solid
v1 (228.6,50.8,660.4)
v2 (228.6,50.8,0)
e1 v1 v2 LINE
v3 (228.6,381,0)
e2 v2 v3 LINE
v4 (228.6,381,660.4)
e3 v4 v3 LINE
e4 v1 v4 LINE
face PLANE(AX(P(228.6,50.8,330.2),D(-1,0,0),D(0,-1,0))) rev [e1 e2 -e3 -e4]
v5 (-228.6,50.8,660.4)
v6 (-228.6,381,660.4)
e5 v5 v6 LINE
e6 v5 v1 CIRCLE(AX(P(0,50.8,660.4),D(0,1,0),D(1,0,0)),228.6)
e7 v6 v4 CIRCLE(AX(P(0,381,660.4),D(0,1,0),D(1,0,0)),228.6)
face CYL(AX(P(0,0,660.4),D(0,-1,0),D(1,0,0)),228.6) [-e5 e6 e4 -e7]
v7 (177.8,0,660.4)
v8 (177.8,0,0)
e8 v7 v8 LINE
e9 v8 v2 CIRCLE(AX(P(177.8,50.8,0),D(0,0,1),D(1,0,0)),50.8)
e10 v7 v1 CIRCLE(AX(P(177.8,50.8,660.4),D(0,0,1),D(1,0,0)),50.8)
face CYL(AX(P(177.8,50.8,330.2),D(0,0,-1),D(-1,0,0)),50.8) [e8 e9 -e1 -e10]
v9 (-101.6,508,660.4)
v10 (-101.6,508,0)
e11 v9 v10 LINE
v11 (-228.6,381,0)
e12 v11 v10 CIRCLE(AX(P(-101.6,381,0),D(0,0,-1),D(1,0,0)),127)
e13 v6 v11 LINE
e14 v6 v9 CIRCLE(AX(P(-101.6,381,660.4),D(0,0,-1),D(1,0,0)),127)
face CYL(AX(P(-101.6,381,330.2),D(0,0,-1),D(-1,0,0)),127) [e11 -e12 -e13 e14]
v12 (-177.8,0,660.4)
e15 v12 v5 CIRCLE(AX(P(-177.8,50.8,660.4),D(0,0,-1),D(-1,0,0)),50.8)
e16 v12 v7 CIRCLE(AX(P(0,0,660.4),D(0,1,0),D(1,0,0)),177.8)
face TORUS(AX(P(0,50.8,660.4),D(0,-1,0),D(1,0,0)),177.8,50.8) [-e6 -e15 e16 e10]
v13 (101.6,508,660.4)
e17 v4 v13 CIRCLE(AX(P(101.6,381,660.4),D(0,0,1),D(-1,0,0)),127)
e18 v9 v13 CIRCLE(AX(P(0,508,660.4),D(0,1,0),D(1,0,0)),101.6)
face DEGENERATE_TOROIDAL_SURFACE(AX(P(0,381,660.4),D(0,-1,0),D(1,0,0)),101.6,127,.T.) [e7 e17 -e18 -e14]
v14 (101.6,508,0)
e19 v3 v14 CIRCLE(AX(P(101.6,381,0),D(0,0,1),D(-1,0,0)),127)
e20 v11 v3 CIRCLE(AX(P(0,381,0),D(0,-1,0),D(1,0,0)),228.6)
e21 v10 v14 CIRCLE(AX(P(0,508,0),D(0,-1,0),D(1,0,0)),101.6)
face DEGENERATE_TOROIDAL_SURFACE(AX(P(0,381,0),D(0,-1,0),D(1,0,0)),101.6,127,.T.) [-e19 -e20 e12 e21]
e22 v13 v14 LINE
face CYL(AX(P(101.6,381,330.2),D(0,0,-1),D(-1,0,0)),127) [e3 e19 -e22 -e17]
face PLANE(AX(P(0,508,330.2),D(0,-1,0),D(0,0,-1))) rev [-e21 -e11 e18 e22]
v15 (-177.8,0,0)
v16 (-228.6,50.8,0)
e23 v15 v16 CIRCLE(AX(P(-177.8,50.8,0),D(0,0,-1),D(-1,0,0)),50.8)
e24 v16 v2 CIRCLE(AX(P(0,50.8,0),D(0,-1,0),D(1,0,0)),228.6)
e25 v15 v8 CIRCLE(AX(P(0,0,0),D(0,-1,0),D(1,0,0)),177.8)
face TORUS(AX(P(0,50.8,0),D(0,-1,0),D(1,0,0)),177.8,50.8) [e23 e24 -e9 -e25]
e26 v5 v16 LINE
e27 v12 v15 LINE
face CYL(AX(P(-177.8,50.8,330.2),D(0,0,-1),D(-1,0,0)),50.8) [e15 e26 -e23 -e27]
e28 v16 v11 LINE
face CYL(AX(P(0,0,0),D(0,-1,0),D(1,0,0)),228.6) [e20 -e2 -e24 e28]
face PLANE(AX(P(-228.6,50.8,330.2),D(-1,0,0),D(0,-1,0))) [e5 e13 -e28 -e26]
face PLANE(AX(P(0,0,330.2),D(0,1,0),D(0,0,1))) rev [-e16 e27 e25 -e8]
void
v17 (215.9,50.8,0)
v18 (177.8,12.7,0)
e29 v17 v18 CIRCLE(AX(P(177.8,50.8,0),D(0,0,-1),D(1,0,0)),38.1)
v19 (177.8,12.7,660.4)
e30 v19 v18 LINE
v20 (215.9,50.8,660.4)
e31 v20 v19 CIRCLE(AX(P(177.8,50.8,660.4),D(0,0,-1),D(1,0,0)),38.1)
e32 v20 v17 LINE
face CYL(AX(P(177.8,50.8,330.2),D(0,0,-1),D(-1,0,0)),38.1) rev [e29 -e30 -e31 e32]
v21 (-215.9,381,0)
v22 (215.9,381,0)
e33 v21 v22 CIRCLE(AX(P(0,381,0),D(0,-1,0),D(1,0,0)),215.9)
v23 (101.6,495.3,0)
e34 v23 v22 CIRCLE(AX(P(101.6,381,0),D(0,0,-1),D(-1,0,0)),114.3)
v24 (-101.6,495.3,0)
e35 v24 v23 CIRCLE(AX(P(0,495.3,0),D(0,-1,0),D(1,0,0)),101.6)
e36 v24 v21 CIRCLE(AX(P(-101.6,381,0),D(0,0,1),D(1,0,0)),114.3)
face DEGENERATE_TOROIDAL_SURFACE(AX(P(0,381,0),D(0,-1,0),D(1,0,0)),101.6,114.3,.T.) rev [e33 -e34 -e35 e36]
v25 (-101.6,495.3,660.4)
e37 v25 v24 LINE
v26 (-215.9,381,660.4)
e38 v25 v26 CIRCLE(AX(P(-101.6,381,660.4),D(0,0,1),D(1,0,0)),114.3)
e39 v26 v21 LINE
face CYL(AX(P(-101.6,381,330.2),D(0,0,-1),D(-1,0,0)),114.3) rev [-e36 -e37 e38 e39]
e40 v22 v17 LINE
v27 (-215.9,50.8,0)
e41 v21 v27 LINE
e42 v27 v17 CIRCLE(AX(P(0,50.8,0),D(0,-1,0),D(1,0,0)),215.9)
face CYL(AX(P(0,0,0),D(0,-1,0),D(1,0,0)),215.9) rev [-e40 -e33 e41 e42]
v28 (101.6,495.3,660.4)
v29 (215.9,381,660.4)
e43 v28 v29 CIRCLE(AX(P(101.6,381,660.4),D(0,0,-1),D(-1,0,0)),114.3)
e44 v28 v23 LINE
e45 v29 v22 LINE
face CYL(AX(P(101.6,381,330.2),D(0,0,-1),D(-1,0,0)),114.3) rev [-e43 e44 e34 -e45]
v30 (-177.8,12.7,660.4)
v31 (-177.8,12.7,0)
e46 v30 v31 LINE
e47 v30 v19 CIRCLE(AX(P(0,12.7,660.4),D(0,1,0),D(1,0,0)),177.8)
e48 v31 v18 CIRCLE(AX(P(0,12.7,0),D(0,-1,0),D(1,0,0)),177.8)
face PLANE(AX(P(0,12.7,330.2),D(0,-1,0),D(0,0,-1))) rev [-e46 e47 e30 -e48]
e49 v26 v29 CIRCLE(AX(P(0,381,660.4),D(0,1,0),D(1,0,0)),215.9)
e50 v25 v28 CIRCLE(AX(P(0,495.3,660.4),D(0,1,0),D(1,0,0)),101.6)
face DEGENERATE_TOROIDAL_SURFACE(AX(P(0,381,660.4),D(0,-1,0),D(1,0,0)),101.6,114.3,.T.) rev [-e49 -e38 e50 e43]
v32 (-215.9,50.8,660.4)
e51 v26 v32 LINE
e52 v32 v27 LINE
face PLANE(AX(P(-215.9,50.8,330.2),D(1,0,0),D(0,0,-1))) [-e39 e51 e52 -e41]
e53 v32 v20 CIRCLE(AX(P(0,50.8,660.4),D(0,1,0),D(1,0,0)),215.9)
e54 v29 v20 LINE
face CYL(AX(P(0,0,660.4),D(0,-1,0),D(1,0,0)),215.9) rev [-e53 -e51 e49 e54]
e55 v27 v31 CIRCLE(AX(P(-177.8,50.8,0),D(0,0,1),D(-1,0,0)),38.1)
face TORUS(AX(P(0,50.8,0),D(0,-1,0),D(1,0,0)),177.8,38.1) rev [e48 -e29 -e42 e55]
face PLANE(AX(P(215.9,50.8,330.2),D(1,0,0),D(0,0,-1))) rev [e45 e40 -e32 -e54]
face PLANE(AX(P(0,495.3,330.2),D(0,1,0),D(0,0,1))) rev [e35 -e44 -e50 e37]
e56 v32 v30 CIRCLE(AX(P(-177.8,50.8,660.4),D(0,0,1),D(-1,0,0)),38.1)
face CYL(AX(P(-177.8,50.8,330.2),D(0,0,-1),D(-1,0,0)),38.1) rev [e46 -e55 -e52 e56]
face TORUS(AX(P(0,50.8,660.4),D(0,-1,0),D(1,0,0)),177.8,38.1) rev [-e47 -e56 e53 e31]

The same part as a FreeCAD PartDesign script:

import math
import FreeCAD as App
import Part
import Sketcher
from FreeCAD import Vector
Q = App.Units.Quantity

doc = App.newDocument("Part")
params = doc.addObject("Spreadsheet::Sheet", "Params")
for row, (alias, value) in enumerate([
    ("sketch1_radius", "2 in"),
    ("sketch1_radius2", "5 in"),
    ("sketch1_radius3", "4.5 in"),
    ("sketch1_width", "7 in"),
    ("sketch1_height", "13 in"),
    ("pad1_length", "13 in"),
    ("sketch2_radius", "2 in"),
    ("sketch2_radius2", "5 in"),
    ("sketch2_radius3", "4.5 in"),
    ("sketch2_width", "7 in"),
    ("sketch2_height", "13 in"),
    ("revolution_angle", "90 deg"),
    ("sketch3_radius", "2 in"),
    ("sketch3_radius2", "5 in"),
    ("sketch3_radius3", "4.5 in"),
    ("sketch3_width", "7 in"),
    ("sketch3_height", "13 in"),
    ("pad2_length", "13 in"),
    ("sketch4_radius", "2 in"),
    ("sketch4_radius2", "5 in"),
    ("sketch4_radius3", "4.5 in"),
    ("sketch4_width", "7 in"),
    ("sketch4_height", "13 in"),
    ("revolution2_angle", "90 deg"),
], start=1):
    params.set(f"A{row}", alias)
    params.set(f"B{row}", "=" + value)
    params.setAlias(f"B{row}", alias)

body = doc.addObject("PartDesign::Body", "Body")

# Sketch on XY plane
sketch1 = body.newObject("Sketcher::SketchObject", "Sketch")
sketch1.AttachmentSupport = (doc.getObject("XY_Plane"), [""])
sketch1.MapMode = "FlatFace"
sketch1.addGeometry(Part.LineSegment(Vector(178, 13, 0), Vector(0, 13, 0)), False)
sketch1.addGeometry(Part.LineSegment(Vector(0, 13, 0), Vector(0, 0, 0)), False)
sketch1.addGeometry(Part.LineSegment(Vector(0, 0, 0), Vector(178, 0, 0)), False)
sketch1.addGeometry(Part.ArcOfCircle(Part.Circle(Vector(178, 51, 0), Vector(0, 0, 1), 51), math.radians(-90), math.radians(0)), False)
sketch1.addGeometry(Part.LineSegment(Vector(229, 51, 0), Vector(229, 381, 0)), False)
sketch1.addGeometry(Part.ArcOfCircle(Part.Circle(Vector(102, 381, 0), Vector(0, 0, 1), 127), math.radians(0), math.radians(90)), False)
sketch1.addGeometry(Part.LineSegment(Vector(102, 508, 0), Vector(0, 508, 0)), False)
sketch1.addGeometry(Part.LineSegment(Vector(0, 508, 0), Vector(0, 495, 0)), False)
sketch1.addGeometry(Part.LineSegment(Vector(0, 495, 0), Vector(102, 495, 0)), False)
sketch1.addGeometry(Part.ArcOfCircle(Part.Circle(Vector(102, 381, 0), Vector(0, 0, 1), 114), math.radians(0), math.radians(90)), False)
sketch1.addGeometry(Part.LineSegment(Vector(216, 381, 0), Vector(216, 51, 0)), False)
sketch1.addGeometry(Part.ArcOfCircle(Part.Circle(Vector(178, 51, 0), Vector(0, 0, 1), 38), math.radians(-90), math.radians(0)), False)
sketch1.addConstraint(Sketcher.Constraint("Coincident", 0, 2, 1, 1))
sketch1.addConstraint(Sketcher.Constraint("Coincident", 1, 2, 2, 1))
sketch1.addConstraint(Sketcher.Constraint("Tangent", 2, 2, 3, 1))
sketch1.addConstraint(Sketcher.Constraint("Tangent", 3, 2, 4, 1))
sketch1.addConstraint(Sketcher.Constraint("Tangent", 4, 2, 5, 1))
sketch1.addConstraint(Sketcher.Constraint("Tangent", 5, 2, 6, 1))
sketch1.addConstraint(Sketcher.Constraint("Coincident", 6, 2, 7, 1))
sketch1.addConstraint(Sketcher.Constraint("Coincident", 7, 2, 8, 1))
sketch1.addConstraint(Sketcher.Constraint("Tangent", 8, 2, 9, 2))
sketch1.addConstraint(Sketcher.Constraint("Tangent", 9, 1, 10, 1))
sketch1.addConstraint(Sketcher.Constraint("Tangent", 10, 2, 11, 2))
sketch1.addConstraint(Sketcher.Constraint("Tangent", 11, 1, 0, 1))
sketch1.addConstraint(Sketcher.Constraint("Horizontal", 0))
sketch1.addConstraint(Sketcher.Constraint("Vertical", 1))
sketch1.addConstraint(Sketcher.Constraint("Horizontal", 2))
sketch1.addConstraint(Sketcher.Constraint("Vertical", 4))
sketch1.addConstraint(Sketcher.Constraint("Horizontal", 6))
sketch1.addConstraint(Sketcher.Constraint("Vertical", 7))
sketch1.addConstraint(Sketcher.Constraint("Horizontal", 8))
sketch1.addConstraint(Sketcher.Constraint("Vertical", 10))
sketch1.addConstraint(Sketcher.Constraint("Coincident", 1, 2, -1, 1))
sketch1.addConstraint(Sketcher.Constraint("Coincident", 9, 3, 5, 3))
sketch1.addConstraint(Sketcher.Constraint("Coincident", 11, 3, 3, 3))
sketch1.addConstraint(Sketcher.Constraint("PointOnObject", 6, 2, -2))
sketch1.addConstraint(Sketcher.Constraint("Radius", 3, Q("2 in")))
sketch1.addConstraint(Sketcher.Constraint("Radius", 5, Q("5 in")))
sketch1.addConstraint(Sketcher.Constraint("Radius", 9, Q("4.5 in")))
sketch1.addConstraint(Sketcher.Constraint("DistanceX", 0, 2, 0, 1, Q("7 in")))
sketch1.addConstraint(Sketcher.Constraint("DistanceY", 4, 1, 4, 2, Q("13 in")))
sketch1.setExpression("Constraints[24]", "Params.sketch1_radius")
sketch1.setExpression("Constraints[25]", "Params.sketch1_radius2")
sketch1.setExpression("Constraints[26]", "Params.sketch1_radius3")
sketch1.setExpression("Constraints[27]", "Params.sketch1_width")
sketch1.setExpression("Constraints[28]", "Params.sketch1_height")
pad1 = body.newObject("PartDesign::Pad", "Pad")
pad1.Profile = sketch1
pad1.setExpression("Length", "Params.pad1_length")

# Sketch on XY plane
sketch2 = body.newObject("Sketcher::SketchObject", "Sketch001")
sketch2.AttachmentSupport = (doc.getObject("XY_Plane"), [""])
sketch2.MapMode = "FlatFace"
sketch2.addGeometry(Part.LineSegment(Vector(178, 13, 0), Vector(0, 13, 0)), False)
sketch2.addGeometry(Part.LineSegment(Vector(0, 13, 0), Vector(0, 0, 0)), False)
sketch2.addGeometry(Part.LineSegment(Vector(0, 0, 0), Vector(178, 0, 0)), False)
sketch2.addGeometry(Part.ArcOfCircle(Part.Circle(Vector(178, 51, 0), Vector(0, 0, 1), 51), math.radians(-90), math.radians(0)), False)
sketch2.addGeometry(Part.LineSegment(Vector(229, 51, 0), Vector(229, 381, 0)), False)
sketch2.addGeometry(Part.ArcOfCircle(Part.Circle(Vector(102, 381, 0), Vector(0, 0, 1), 127), math.radians(0), math.radians(90)), False)
sketch2.addGeometry(Part.LineSegment(Vector(102, 508, 0), Vector(0, 508, 0)), False)
sketch2.addGeometry(Part.LineSegment(Vector(0, 508, 0), Vector(0, 495, 0)), False)
sketch2.addGeometry(Part.LineSegment(Vector(0, 495, 0), Vector(102, 495, 0)), False)
sketch2.addGeometry(Part.ArcOfCircle(Part.Circle(Vector(102, 381, 0), Vector(0, 0, 1), 114), math.radians(0), math.radians(90)), False)
sketch2.addGeometry(Part.LineSegment(Vector(216, 381, 0), Vector(216, 51, 0)), False)
sketch2.addGeometry(Part.ArcOfCircle(Part.Circle(Vector(178, 51, 0), Vector(0, 0, 1), 38), math.radians(-90), math.radians(0)), False)
sketch2.addConstraint(Sketcher.Constraint("Coincident", 0, 2, 1, 1))
sketch2.addConstraint(Sketcher.Constraint("Coincident", 1, 2, 2, 1))
sketch2.addConstraint(Sketcher.Constraint("Tangent", 2, 2, 3, 1))
sketch2.addConstraint(Sketcher.Constraint("Tangent", 3, 2, 4, 1))
sketch2.addConstraint(Sketcher.Constraint("Tangent", 4, 2, 5, 1))
sketch2.addConstraint(Sketcher.Constraint("Tangent", 5, 2, 6, 1))
sketch2.addConstraint(Sketcher.Constraint("Coincident", 6, 2, 7, 1))
sketch2.addConstraint(Sketcher.Constraint("Coincident", 7, 2, 8, 1))
sketch2.addConstraint(Sketcher.Constraint("Tangent", 8, 2, 9, 2))
sketch2.addConstraint(Sketcher.Constraint("Tangent", 9, 1, 10, 1))
sketch2.addConstraint(Sketcher.Constraint("Tangent", 10, 2, 11, 2))
sketch2.addConstraint(Sketcher.Constraint("Tangent", 11, 1, 0, 1))
sketch2.addConstraint(Sketcher.Constraint("Horizontal", 0))
sketch2.addConstraint(Sketcher.Constraint("Vertical", 1))
sketch2.addConstraint(Sketcher.Constraint("Horizontal", 2))
sketch2.addConstraint(Sketcher.Constraint("Vertical", 4))
sketch2.addConstraint(Sketcher.Constraint("Horizontal", 6))
sketch2.addConstraint(Sketcher.Constraint("Vertical", 7))
sketch2.addConstraint(Sketcher.Constraint("Horizontal", 8))
sketch2.addConstraint(Sketcher.Constraint("Vertical", 10))
sketch2.addConstraint(Sketcher.Constraint("Coincident", 1, 2, -1, 1))
sketch2.addConstraint(Sketcher.Constraint("Coincident", 9, 3, 5, 3))
sketch2.addConstraint(Sketcher.Constraint("Coincident", 11, 3, 3, 3))
sketch2.addConstraint(Sketcher.Constraint("PointOnObject", 6, 2, -2))
sketch2.addConstraint(Sketcher.Constraint("Radius", 3, Q("2 in")))
sketch2.addConstraint(Sketcher.Constraint("Radius", 5, Q("5 in")))
sketch2.addConstraint(Sketcher.Constraint("Radius", 9, Q("4.5 in")))
sketch2.addConstraint(Sketcher.Constraint("DistanceX", 0, 2, 0, 1, Q("7 in")))
sketch2.addConstraint(Sketcher.Constraint("DistanceY", 4, 1, 4, 2, Q("13 in")))
sketch2.setExpression("Constraints[24]", "Params.sketch2_radius")
sketch2.setExpression("Constraints[25]", "Params.sketch2_radius2")
sketch2.setExpression("Constraints[26]", "Params.sketch2_radius3")
sketch2.setExpression("Constraints[27]", "Params.sketch2_width")
sketch2.setExpression("Constraints[28]", "Params.sketch2_height")
revolution = body.newObject("PartDesign::Revolution", "Revolution")
revolution.Profile = sketch2
revolution.ReferenceAxis = (sketch2, ["V_Axis"])
revolution.setExpression("Angle", "Params.revolution_angle")
doc.recompute()

mirrored = body.newObject("PartDesign::Mirrored", "Mirrored")
mirrored.Originals = [pad1, revolution]
mirrored.MirrorPlane = (doc.getObject("YZ_Plane"), [""])
body.Tip = mirrored
doc.recompute()

datumplane = body.newObject("PartDesign::Plane", "DatumPlane")
datumplane.AttachmentSupport = (doc.getObject("XY_Plane"), [""])
datumplane.MapMode = "FlatFace"
datumplane.AttachmentOffset = App.Placement(Vector(0, 0, 13 * 25.4), App.Rotation())
mirrored2 = body.newObject("PartDesign::Mirrored", "Mirrored001")
mirrored2.Originals = [pad1, revolution]
mirrored2.MirrorPlane = (datumplane, [""])
body.Tip = mirrored2

# Sketch on XY plane
sketch3 = body.newObject("Sketcher::SketchObject", "Sketch002")
sketch3.AttachmentSupport = (doc.getObject("XY_Plane"), [""])
sketch3.MapMode = "FlatFace"
sketch3.AttachmentOffset = App.Placement(Vector(0, 0, 26 * 25.4), App.Rotation())
sketch3.addGeometry(Part.LineSegment(Vector(-178, 13, 0), Vector(0, 13, 0)), False)
sketch3.addGeometry(Part.LineSegment(Vector(0, 13, 0), Vector(0, 0, 0)), False)
sketch3.addGeometry(Part.LineSegment(Vector(0, 0, 0), Vector(-178, 0, 0)), False)
sketch3.addGeometry(Part.ArcOfCircle(Part.Circle(Vector(-178, 51, 0), Vector(0, 0, 1), 51), math.radians(-180), math.radians(-90)), False)
sketch3.addGeometry(Part.LineSegment(Vector(-229, 51, 0), Vector(-229, 381, 0)), False)
sketch3.addGeometry(Part.ArcOfCircle(Part.Circle(Vector(-102, 381, 0), Vector(0, 0, 1), 127), math.radians(90), math.radians(180)), False)
sketch3.addGeometry(Part.LineSegment(Vector(-102, 508, 0), Vector(0, 508, 0)), False)
sketch3.addGeometry(Part.LineSegment(Vector(0, 508, 0), Vector(0, 495, 0)), False)
sketch3.addGeometry(Part.LineSegment(Vector(0, 495, 0), Vector(-102, 495, 0)), False)
sketch3.addGeometry(Part.ArcOfCircle(Part.Circle(Vector(-102, 381, 0), Vector(0, 0, 1), 114), math.radians(90), math.radians(180)), False)
sketch3.addGeometry(Part.LineSegment(Vector(-216, 381, 0), Vector(-216, 51, 0)), False)
sketch3.addGeometry(Part.ArcOfCircle(Part.Circle(Vector(-178, 51, 0), Vector(0, 0, 1), 38), math.radians(-180), math.radians(-90)), False)
sketch3.addConstraint(Sketcher.Constraint("Coincident", 0, 2, 1, 1))
sketch3.addConstraint(Sketcher.Constraint("Coincident", 1, 2, 2, 1))
sketch3.addConstraint(Sketcher.Constraint("Tangent", 2, 2, 3, 2))
sketch3.addConstraint(Sketcher.Constraint("Tangent", 3, 1, 4, 1))
sketch3.addConstraint(Sketcher.Constraint("Tangent", 4, 2, 5, 2))
sketch3.addConstraint(Sketcher.Constraint("Tangent", 5, 1, 6, 1))
sketch3.addConstraint(Sketcher.Constraint("Coincident", 6, 2, 7, 1))
sketch3.addConstraint(Sketcher.Constraint("Coincident", 7, 2, 8, 1))
sketch3.addConstraint(Sketcher.Constraint("Tangent", 8, 2, 9, 1))
sketch3.addConstraint(Sketcher.Constraint("Tangent", 9, 2, 10, 1))
sketch3.addConstraint(Sketcher.Constraint("Tangent", 10, 2, 11, 1))
sketch3.addConstraint(Sketcher.Constraint("Tangent", 11, 2, 0, 1))
sketch3.addConstraint(Sketcher.Constraint("Horizontal", 0))
sketch3.addConstraint(Sketcher.Constraint("Vertical", 1))
sketch3.addConstraint(Sketcher.Constraint("Horizontal", 2))
sketch3.addConstraint(Sketcher.Constraint("Vertical", 4))
sketch3.addConstraint(Sketcher.Constraint("Horizontal", 6))
sketch3.addConstraint(Sketcher.Constraint("Vertical", 7))
sketch3.addConstraint(Sketcher.Constraint("Horizontal", 8))
sketch3.addConstraint(Sketcher.Constraint("Vertical", 10))
sketch3.addConstraint(Sketcher.Constraint("Coincident", 1, 2, -1, 1))
sketch3.addConstraint(Sketcher.Constraint("Coincident", 9, 3, 5, 3))
sketch3.addConstraint(Sketcher.Constraint("Coincident", 11, 3, 3, 3))
sketch3.addConstraint(Sketcher.Constraint("PointOnObject", 6, 2, -2))
sketch3.addConstraint(Sketcher.Constraint("Radius", 3, Q("2 in")))
sketch3.addConstraint(Sketcher.Constraint("Radius", 5, Q("5 in")))
sketch3.addConstraint(Sketcher.Constraint("Radius", 9, Q("4.5 in")))
sketch3.addConstraint(Sketcher.Constraint("DistanceX", 0, 1, 0, 2, Q("7 in")))
sketch3.addConstraint(Sketcher.Constraint("DistanceY", 4, 1, 4, 2, Q("13 in")))
sketch3.setExpression("Constraints[24]", "Params.sketch3_radius")
sketch3.setExpression("Constraints[25]", "Params.sketch3_radius2")
sketch3.setExpression("Constraints[26]", "Params.sketch3_radius3")
sketch3.setExpression("Constraints[27]", "Params.sketch3_width")
sketch3.setExpression("Constraints[28]", "Params.sketch3_height")
pad2 = body.newObject("PartDesign::Pad", "Pad001")
pad2.Profile = sketch3
pad2.setExpression("Length", "Params.pad2_length")
pad2.Reversed = True

# Sketch on XY plane
sketch4 = body.newObject("Sketcher::SketchObject", "Sketch003")
sketch4.AttachmentSupport = (doc.getObject("XY_Plane"), [""])
sketch4.MapMode = "FlatFace"
sketch4.AttachmentOffset = App.Placement(Vector(0, 0, 26 * 25.4), App.Rotation())
sketch4.addGeometry(Part.LineSegment(Vector(-178, 13, 0), Vector(0, 13, 0)), False)
sketch4.addGeometry(Part.LineSegment(Vector(0, 13, 0), Vector(0, 0, 0)), False)
sketch4.addGeometry(Part.LineSegment(Vector(0, 0, 0), Vector(-178, 0, 0)), False)
sketch4.addGeometry(Part.ArcOfCircle(Part.Circle(Vector(-178, 51, 0), Vector(0, 0, 1), 51), math.radians(-180), math.radians(-90)), False)
sketch4.addGeometry(Part.LineSegment(Vector(-229, 51, 0), Vector(-229, 381, 0)), False)
sketch4.addGeometry(Part.ArcOfCircle(Part.Circle(Vector(-102, 381, 0), Vector(0, 0, 1), 127), math.radians(90), math.radians(180)), False)
sketch4.addGeometry(Part.LineSegment(Vector(-102, 508, 0), Vector(0, 508, 0)), False)
sketch4.addGeometry(Part.LineSegment(Vector(0, 508, 0), Vector(0, 495, 0)), False)
sketch4.addGeometry(Part.LineSegment(Vector(0, 495, 0), Vector(-102, 495, 0)), False)
sketch4.addGeometry(Part.ArcOfCircle(Part.Circle(Vector(-102, 381, 0), Vector(0, 0, 1), 114), math.radians(90), math.radians(180)), False)
sketch4.addGeometry(Part.LineSegment(Vector(-216, 381, 0), Vector(-216, 51, 0)), False)
sketch4.addGeometry(Part.ArcOfCircle(Part.Circle(Vector(-178, 51, 0), Vector(0, 0, 1), 38), math.radians(-180), math.radians(-90)), False)
sketch4.addConstraint(Sketcher.Constraint("Coincident", 0, 2, 1, 1))
sketch4.addConstraint(Sketcher.Constraint("Coincident", 1, 2, 2, 1))
sketch4.addConstraint(Sketcher.Constraint("Tangent", 2, 2, 3, 2))
sketch4.addConstraint(Sketcher.Constraint("Tangent", 3, 1, 4, 1))
sketch4.addConstraint(Sketcher.Constraint("Tangent", 4, 2, 5, 2))
sketch4.addConstraint(Sketcher.Constraint("Tangent", 5, 1, 6, 1))
sketch4.addConstraint(Sketcher.Constraint("Coincident", 6, 2, 7, 1))
sketch4.addConstraint(Sketcher.Constraint("Coincident", 7, 2, 8, 1))
sketch4.addConstraint(Sketcher.Constraint("Tangent", 8, 2, 9, 1))
sketch4.addConstraint(Sketcher.Constraint("Tangent", 9, 2, 10, 1))
sketch4.addConstraint(Sketcher.Constraint("Tangent", 10, 2, 11, 1))
sketch4.addConstraint(Sketcher.Constraint("Tangent", 11, 2, 0, 1))
sketch4.addConstraint(Sketcher.Constraint("Horizontal", 0))
sketch4.addConstraint(Sketcher.Constraint("Vertical", 1))
sketch4.addConstraint(Sketcher.Constraint("Horizontal", 2))
sketch4.addConstraint(Sketcher.Constraint("Vertical", 4))
sketch4.addConstraint(Sketcher.Constraint("Horizontal", 6))
sketch4.addConstraint(Sketcher.Constraint("Vertical", 7))
sketch4.addConstraint(Sketcher.Constraint("Horizontal", 8))
sketch4.addConstraint(Sketcher.Constraint("Vertical", 10))
sketch4.addConstraint(Sketcher.Constraint("Coincident", 1, 2, -1, 1))
sketch4.addConstraint(Sketcher.Constraint("Coincident", 9, 3, 5, 3))
sketch4.addConstraint(Sketcher.Constraint("Coincident", 11, 3, 3, 3))
sketch4.addConstraint(Sketcher.Constraint("PointOnObject", 6, 2, -2))
sketch4.addConstraint(Sketcher.Constraint("Radius", 3, Q("2 in")))
sketch4.addConstraint(Sketcher.Constraint("Radius", 5, Q("5 in")))
sketch4.addConstraint(Sketcher.Constraint("Radius", 9, Q("4.5 in")))
sketch4.addConstraint(Sketcher.Constraint("DistanceX", 0, 1, 0, 2, Q("7 in")))
sketch4.addConstraint(Sketcher.Constraint("DistanceY", 4, 1, 4, 2, Q("13 in")))
sketch4.setExpression("Constraints[24]", "Params.sketch4_radius")
sketch4.setExpression("Constraints[25]", "Params.sketch4_radius2")
sketch4.setExpression("Constraints[26]", "Params.sketch4_radius3")
sketch4.setExpression("Constraints[27]", "Params.sketch4_width")
sketch4.setExpression("Constraints[28]", "Params.sketch4_height")
revolution2 = body.newObject("PartDesign::Revolution", "Revolution001")
revolution2.Profile = sketch4
revolution2.ReferenceAxis = (sketch4, ["V_Axis"])
revolution2.setExpression("Angle", "Params.revolution2_angle")

doc.recompute()
